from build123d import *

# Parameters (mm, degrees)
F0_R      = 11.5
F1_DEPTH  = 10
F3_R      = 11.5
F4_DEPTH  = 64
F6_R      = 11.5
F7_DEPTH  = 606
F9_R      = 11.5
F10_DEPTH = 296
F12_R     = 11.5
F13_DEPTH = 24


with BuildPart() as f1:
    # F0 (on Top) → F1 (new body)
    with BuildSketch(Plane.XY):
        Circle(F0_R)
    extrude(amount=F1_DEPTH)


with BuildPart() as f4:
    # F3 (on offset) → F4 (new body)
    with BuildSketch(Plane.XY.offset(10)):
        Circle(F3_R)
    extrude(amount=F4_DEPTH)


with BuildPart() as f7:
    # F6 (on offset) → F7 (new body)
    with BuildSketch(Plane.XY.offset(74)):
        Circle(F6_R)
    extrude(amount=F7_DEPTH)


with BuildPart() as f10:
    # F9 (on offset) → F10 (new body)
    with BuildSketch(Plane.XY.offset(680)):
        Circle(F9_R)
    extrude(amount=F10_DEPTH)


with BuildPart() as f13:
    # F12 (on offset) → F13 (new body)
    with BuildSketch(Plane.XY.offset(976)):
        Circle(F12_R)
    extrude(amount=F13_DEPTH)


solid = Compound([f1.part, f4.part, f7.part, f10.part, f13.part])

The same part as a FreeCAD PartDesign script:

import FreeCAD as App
import Part
import Sketcher

V = App.Vector

doc = App.newDocument("Part")
body = doc.addObject("PartDesign::Body", "Body")

# Sketch on XY plane
sketch1 = body.newObject("Sketcher::SketchObject", "Sketch")
sketch1.AttachmentSupport = (doc.getObject("XY_Plane"), [""])
sketch1.MapMode = "FlatFace"
sketch1.addGeometry(Part.Circle(V(0, 0, 0), V(0, 0, 1), 12), False)
sketch1.addConstraint([
    Sketcher.Constraint("Coincident", 0, 3, -1, 1),
    Sketcher.Constraint("Diameter", 0, 23.0),
])
pad1 = body.newObject("PartDesign::Pad", "Pad")
pad1.Profile = sketch1
pad1.Length = 10
body2 = doc.addObject("PartDesign::Body", "Body001")

# Sketch on XY plane
sketch2 = body2.newObject("Sketcher::SketchObject", "Sketch001")
sketch2.AttachmentSupport = (doc.getObject("XY_Plane001"), [""])
sketch2.MapMode = "FlatFace"
sketch2.AttachmentOffset = App.Placement(V(0, 0, 10), App.Rotation())
sketch2.addGeometry(Part.Circle(V(0, 0, 0), V(0, 0, 1), 12), False)
sketch2.addConstraint([
    Sketcher.Constraint("Coincident", 0, 3, -1, 1),
    Sketcher.Constraint("Diameter", 0, 23.0),
])
pad2 = body2.newObject("PartDesign::Pad", "Pad001")
pad2.Profile = sketch2
pad2.Length = 64
body3 = doc.addObject("PartDesign::Body", "Body002")

# Sketch on XY plane
sketch3 = body3.newObject("Sketcher::SketchObject", "Sketch002")
sketch3.AttachmentSupport = (doc.getObject("XY_Plane002"), [""])
sketch3.MapMode = "FlatFace"
sketch3.AttachmentOffset = App.Placement(V(0, 0, 74), App.Rotation())
sketch3.addGeometry(Part.Circle(V(0, 0, 0), V(0, 0, 1), 12), False)
sketch3.addConstraint([
    Sketcher.Constraint("Coincident", 0, 3, -1, 1),
    Sketcher.Constraint("Diameter", 0, 23.0),
])
pad3 = body3.newObject("PartDesign::Pad", "Pad002")
pad3.Profile = sketch3
pad3.Length = 606
body4 = doc.addObject("PartDesign::Body", "Body003")

# Sketch on XY plane
sketch4 = body4.newObject("Sketcher::SketchObject", "Sketch003")
sketch4.AttachmentSupport = (doc.getObject("XY_Plane003"), [""])
sketch4.MapMode = "FlatFace"
sketch4.AttachmentOffset = App.Placement(V(0, 0, 680), App.Rotation())
sketch4.addGeometry(Part.Circle(V(0, 0, 0), V(0, 0, 1), 12), False)
sketch4.addConstraint([
    Sketcher.Constraint("Coincident", 0, 3, -1, 1),
    Sketcher.Constraint("Diameter", 0, 23.0),
])
pad4 = body4.newObject("PartDesign::Pad", "Pad003")
pad4.Profile = sketch4
pad4.Length = 296
body5 = doc.addObject("PartDesign::Body", "Body004")

# Sketch on XY plane
sketch5 = body5.newObject("Sketcher::SketchObject", "Sketch004")
sketch5.AttachmentSupport = (doc.getObject("XY_Plane004"), [""])
sketch5.MapMode = "FlatFace"
sketch5.AttachmentOffset = App.Placement(V(0, 0, 976), App.Rotation())
sketch5.addGeometry(Part.Circle(V(0, 0, 0), V(0, 0, 1), 12), False)
sketch5.addConstraint([
    Sketcher.Constraint("Coincident", 0, 3, -1, 1),
    Sketcher.Constraint("Diameter", 0, 23.0),
])
pad5 = body5.newObject("PartDesign::Pad", "Pad004")
pad5.Profile = sketch5
pad5.Length = 24

doc.recompute()
